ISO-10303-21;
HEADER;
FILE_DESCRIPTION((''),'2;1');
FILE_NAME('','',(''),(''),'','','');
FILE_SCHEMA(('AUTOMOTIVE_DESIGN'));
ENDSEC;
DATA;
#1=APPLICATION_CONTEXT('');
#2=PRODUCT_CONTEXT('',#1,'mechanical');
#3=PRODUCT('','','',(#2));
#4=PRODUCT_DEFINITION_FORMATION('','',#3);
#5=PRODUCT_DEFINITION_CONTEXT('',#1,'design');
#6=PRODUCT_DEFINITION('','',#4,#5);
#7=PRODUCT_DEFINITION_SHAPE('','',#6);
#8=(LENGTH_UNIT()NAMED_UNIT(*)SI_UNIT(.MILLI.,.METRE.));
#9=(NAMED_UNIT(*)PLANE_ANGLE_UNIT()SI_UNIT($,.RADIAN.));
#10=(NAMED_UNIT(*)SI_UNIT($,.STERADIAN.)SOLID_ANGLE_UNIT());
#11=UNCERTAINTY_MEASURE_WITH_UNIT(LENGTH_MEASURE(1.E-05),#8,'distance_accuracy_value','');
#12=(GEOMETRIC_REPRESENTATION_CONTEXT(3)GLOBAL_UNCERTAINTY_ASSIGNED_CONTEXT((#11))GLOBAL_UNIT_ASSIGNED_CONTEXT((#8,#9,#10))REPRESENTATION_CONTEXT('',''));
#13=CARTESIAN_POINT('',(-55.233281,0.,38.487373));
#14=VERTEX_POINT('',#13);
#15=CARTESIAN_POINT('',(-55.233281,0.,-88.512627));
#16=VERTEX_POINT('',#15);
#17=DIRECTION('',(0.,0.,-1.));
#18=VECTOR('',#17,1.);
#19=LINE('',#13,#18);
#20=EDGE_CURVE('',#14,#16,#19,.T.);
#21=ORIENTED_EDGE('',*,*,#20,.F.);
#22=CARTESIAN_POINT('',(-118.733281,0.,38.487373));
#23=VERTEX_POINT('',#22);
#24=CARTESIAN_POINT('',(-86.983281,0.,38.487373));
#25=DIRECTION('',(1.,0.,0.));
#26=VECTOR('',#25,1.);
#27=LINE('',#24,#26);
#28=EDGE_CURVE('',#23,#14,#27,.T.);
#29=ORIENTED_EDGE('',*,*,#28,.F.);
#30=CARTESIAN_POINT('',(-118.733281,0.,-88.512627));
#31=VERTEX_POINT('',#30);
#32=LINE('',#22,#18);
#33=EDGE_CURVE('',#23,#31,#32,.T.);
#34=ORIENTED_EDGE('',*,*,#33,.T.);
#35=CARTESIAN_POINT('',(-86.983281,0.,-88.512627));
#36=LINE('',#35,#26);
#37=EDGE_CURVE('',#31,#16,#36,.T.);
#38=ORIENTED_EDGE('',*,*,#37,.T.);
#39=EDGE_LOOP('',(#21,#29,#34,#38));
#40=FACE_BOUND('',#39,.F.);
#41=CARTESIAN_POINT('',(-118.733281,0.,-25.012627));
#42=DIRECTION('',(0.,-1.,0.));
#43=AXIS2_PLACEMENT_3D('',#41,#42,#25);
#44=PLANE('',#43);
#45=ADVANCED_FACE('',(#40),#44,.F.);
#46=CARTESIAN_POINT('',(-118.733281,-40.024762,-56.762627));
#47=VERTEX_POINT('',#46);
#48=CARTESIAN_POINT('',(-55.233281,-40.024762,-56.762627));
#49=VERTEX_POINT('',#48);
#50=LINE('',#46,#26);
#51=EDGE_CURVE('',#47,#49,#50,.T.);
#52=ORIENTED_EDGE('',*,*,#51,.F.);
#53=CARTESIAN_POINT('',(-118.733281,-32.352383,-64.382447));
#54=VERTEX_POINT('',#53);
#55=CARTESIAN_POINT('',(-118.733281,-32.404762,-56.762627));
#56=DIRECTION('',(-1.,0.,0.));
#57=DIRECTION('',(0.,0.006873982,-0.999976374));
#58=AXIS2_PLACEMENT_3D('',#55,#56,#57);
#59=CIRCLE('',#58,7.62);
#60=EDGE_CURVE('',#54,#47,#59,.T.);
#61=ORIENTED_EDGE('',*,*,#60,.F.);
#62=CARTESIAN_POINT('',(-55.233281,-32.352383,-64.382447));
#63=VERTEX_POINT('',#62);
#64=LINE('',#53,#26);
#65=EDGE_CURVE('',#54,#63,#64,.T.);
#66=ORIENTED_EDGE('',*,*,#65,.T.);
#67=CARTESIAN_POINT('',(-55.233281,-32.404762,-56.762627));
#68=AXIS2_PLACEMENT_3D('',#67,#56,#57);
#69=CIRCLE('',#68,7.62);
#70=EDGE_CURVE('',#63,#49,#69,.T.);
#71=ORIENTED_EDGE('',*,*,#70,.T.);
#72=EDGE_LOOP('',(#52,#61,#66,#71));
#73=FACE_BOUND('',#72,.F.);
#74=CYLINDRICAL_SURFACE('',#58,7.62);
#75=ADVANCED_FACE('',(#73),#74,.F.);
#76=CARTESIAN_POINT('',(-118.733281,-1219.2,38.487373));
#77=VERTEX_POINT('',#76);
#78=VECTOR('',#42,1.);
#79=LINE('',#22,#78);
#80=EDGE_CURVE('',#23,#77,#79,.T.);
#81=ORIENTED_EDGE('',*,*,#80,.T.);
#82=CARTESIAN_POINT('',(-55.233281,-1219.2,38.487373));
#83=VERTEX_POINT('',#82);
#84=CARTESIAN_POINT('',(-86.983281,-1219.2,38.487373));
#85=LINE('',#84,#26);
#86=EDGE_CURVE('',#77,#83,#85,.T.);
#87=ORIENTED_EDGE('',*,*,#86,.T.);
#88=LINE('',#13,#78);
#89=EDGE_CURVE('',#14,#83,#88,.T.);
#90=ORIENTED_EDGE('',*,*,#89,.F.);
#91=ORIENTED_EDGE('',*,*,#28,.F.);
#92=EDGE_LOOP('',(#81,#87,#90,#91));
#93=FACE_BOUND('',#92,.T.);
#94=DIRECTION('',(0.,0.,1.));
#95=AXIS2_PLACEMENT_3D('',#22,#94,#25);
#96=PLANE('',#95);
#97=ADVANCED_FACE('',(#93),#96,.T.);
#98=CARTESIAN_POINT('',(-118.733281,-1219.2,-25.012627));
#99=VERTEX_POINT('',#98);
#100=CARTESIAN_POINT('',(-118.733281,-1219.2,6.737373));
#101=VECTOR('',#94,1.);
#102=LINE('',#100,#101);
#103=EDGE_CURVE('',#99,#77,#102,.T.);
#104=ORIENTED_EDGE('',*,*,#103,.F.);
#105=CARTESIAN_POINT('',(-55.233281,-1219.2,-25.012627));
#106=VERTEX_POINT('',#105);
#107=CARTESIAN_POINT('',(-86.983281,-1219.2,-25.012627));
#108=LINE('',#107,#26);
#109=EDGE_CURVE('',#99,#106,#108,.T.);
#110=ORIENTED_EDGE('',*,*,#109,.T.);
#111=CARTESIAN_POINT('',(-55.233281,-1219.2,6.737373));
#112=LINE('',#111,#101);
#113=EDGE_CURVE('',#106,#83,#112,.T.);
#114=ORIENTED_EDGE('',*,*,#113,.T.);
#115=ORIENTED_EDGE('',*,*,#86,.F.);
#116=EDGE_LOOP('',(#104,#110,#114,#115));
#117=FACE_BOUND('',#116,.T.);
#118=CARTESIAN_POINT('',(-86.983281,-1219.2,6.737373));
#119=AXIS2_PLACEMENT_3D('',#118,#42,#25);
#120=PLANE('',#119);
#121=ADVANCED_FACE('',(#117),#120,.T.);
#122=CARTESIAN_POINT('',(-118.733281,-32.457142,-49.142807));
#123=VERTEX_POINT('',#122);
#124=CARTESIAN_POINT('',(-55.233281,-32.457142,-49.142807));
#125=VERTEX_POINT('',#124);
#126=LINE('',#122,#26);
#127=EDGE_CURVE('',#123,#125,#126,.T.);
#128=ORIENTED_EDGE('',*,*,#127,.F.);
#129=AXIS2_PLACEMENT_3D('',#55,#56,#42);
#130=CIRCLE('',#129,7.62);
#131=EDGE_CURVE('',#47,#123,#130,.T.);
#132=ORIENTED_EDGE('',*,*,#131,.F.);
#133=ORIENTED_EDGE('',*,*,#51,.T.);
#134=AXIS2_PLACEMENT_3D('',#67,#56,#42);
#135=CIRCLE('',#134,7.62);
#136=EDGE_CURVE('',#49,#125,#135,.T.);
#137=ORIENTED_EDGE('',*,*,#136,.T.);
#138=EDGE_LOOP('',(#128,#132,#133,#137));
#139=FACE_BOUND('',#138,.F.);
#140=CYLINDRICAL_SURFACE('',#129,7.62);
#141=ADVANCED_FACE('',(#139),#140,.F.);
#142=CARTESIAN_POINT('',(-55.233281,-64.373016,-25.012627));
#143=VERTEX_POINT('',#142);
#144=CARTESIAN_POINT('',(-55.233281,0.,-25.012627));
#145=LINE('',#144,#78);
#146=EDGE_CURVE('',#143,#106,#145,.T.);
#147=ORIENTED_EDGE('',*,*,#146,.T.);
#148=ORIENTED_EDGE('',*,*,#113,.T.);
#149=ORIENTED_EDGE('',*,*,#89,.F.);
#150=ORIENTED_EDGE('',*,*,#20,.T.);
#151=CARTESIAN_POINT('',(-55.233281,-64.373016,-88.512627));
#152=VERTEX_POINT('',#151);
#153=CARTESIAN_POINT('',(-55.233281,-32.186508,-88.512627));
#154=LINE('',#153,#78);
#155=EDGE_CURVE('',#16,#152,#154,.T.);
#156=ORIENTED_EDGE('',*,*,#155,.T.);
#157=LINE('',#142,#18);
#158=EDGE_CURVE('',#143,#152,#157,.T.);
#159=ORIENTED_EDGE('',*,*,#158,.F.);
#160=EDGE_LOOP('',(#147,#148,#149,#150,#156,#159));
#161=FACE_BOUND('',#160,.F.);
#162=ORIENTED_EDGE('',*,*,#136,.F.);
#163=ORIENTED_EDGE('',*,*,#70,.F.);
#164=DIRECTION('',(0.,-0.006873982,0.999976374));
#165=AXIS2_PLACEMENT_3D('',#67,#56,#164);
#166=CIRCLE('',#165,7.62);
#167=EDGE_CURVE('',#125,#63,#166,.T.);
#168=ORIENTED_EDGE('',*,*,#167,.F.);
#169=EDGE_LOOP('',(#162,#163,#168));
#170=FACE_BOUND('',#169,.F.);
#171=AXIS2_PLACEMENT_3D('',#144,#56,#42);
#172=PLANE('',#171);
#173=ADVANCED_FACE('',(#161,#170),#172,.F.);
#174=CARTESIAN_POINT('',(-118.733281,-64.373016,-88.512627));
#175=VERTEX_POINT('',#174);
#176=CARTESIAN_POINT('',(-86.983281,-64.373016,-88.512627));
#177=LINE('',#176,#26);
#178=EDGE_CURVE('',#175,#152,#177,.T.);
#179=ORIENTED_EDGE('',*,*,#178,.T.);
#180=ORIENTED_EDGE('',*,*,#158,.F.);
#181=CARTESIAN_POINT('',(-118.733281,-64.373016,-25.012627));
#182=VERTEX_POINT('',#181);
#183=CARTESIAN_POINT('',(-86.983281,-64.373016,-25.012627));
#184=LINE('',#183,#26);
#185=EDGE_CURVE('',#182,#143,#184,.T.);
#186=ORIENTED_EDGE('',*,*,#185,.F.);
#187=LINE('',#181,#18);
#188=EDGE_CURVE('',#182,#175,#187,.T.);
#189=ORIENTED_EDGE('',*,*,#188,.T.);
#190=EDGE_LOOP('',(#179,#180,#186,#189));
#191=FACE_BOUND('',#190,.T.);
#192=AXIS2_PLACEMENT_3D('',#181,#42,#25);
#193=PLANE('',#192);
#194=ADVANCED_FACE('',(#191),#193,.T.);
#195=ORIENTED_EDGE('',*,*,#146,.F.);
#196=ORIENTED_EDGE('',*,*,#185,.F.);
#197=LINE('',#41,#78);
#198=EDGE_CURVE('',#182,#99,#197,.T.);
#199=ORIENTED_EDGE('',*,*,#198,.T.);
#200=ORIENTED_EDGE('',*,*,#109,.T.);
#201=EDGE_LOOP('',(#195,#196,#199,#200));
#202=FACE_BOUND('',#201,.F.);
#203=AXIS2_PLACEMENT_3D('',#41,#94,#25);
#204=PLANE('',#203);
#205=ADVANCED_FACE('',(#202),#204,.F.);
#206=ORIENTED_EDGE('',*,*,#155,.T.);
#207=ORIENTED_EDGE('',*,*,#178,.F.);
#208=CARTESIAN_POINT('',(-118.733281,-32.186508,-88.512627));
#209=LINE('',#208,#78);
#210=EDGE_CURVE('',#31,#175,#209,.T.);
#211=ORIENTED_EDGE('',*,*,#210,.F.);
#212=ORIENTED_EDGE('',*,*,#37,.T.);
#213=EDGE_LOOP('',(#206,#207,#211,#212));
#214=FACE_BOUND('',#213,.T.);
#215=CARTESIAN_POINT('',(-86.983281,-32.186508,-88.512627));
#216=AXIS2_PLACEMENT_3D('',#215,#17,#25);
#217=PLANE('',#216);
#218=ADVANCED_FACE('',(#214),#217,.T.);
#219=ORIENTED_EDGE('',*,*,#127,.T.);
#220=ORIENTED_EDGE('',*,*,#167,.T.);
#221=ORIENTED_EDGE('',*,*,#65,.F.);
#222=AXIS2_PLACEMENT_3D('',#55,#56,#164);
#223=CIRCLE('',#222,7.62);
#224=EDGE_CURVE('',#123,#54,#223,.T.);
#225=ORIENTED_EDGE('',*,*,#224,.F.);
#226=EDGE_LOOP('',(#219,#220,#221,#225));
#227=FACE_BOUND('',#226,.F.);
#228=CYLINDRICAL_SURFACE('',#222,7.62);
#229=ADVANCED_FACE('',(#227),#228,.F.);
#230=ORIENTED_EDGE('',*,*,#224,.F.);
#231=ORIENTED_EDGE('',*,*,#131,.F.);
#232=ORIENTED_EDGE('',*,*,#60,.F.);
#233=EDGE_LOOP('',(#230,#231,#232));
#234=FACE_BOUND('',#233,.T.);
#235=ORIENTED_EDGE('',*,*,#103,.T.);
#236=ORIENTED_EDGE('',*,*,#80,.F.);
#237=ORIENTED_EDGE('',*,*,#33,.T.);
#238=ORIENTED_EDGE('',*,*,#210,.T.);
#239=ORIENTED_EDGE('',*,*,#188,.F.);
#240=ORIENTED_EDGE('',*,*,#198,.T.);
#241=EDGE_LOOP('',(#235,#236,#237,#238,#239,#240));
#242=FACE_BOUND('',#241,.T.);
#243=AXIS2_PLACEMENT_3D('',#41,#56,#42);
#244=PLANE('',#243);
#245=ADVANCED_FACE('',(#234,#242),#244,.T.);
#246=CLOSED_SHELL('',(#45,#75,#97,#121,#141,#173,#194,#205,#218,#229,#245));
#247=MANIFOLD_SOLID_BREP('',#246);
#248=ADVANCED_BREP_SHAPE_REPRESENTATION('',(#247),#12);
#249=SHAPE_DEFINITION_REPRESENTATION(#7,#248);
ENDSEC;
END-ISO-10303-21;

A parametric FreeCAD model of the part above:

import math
import FreeCAD as App
import Part
import Sketcher
Q = App.Units.Quantity


def add_polygon(sketch, points):
    """Adds a closed chain of lines whose ends are joined by coincident constraints."""
    first, n = sketch.GeometryCount, len(points)
    for a, b in zip(points, points[1:] + points[:1]):
        sketch.addGeometry(Part.LineSegment(App.Vector(*a, 0), App.Vector(*b, 0)), False)
    for i in range(n):
        sketch.addConstraint(Sketcher.Constraint("Coincident", first + i, 2, first + (i + 1) % n, 1))

doc = App.newDocument("Part")
params = doc.addObject("Spreadsheet::Sheet", "Params")
for row, (alias, value) in enumerate([
    ("sketch1_width", "2.5 in"),
    ("pad1_length", "48 in"),
    ("sketch2_width", "2.5 in"),
    ("pad2_length", "2.5 in"),
    ("sketch3_radius", "0.3 in"),
    ("pocket1_length", "3 in"),
], start=1):
    params.set(f"A{row}", alias)
    params.set(f"B{row}", "=" + value)
    params.setAlias(f"B{row}", alias)

body = doc.addObject("PartDesign::Body", "Body")

# Sketch on XZ plane
sketch1 = doc.addObject("Sketcher::SketchObject", "Sketch")
body.addObject(sketch1)
sketch1.AttachmentSupport = (doc.XZ_Plane, [""])
sketch1.MapMode = "FlatFace"
add_polygon(sketch1, [(-119, 38), (-119, -25), (-55, -25), (-55, 38)])  # lines 0-3
sketch1.addConstraint([
    Sketcher.Constraint("Vertical", 0),
    Sketcher.Constraint("Horizontal", 1),
    Sketcher.Constraint("Vertical", 2),
    Sketcher.Constraint("Horizontal", 3),
    Sketcher.Constraint("Equal", 3, 0),
    Sketcher.Constraint("DistanceX", 1, 1, 1, 2, Q("2.5 in")),
    Sketcher.Constraint("DistanceX", 0, 2, -1, 1, Q("118.733281 mm")),
    Sketcher.Constraint("DistanceY", 0, 2, -1, 1, Q("25.012627 mm")),
])
sketch1.setExpression("Constraints[9]", "Params.sketch1_width")
pad1 = doc.addObject("PartDesign::Pad", "Pad")
body.addObject(pad1)
pad1.Profile = sketch1
pad1.setExpression("Length", "Params.pad1_length")

# Sketch on XY plane
sketch2 = doc.addObject("Sketcher::SketchObject", "Sketch001")
body.addObject(sketch2)
sketch2.AttachmentSupport = (doc.XY_Plane, [""])
sketch2.MapMode = "FlatFace"
sketch2.AttachmentOffset = App.Placement(App.Vector(0, 0, -25.012627), App.Rotation())
add_polygon(sketch2, [(-119, -64), (-119, 0), (-55, 0), (-55, -64)])  # lines 0-3
sketch2.addConstraint([
    Sketcher.Constraint("Vertical", 0),
    Sketcher.Constraint("Horizontal", 1),
    Sketcher.Constraint("Vertical", 2),
    Sketcher.Constraint("Horizontal", 3),
    Sketcher.Constraint("PointOnObject", 0, 2, -1),
    Sketcher.Constraint("DistanceX", 1, 1, 1, 2, Q("2.5 in")),
    Sketcher.Constraint("DistanceY", 0, 1, 0, 2, Q("64.373016 mm")),
    Sketcher.Constraint("DistanceX", 0, 2, -1, 1, Q("118.733281 mm")),
])
sketch2.setExpression("Constraints[9]", "Params.sketch2_width")
pad2 = doc.addObject("PartDesign::Pad", "Pad001")
body.addObject(pad2)
pad2.Profile = sketch2
pad2.setExpression("Length", "Params.pad2_length")
pad2.Reversed = True

# Sketch on YZ plane
sketch3 = doc.addObject("Sketcher::SketchObject", "Sketch002")
body.addObject(sketch3)
sketch3.AttachmentSupport = (doc.YZ_Plane, [""])
sketch3.MapMode = "FlatFace"
sketch3.AttachmentOffset = App.Placement(App.Vector(0, 0, -118.733281), App.Rotation())
sketch3.addGeometry([
    Part.ArcOfCircle(Part.Circle(App.Vector(-32, -57, 0), App.Vector(0, 0, 1), 8), math.radians(180), math.radians(270)),
    Part.ArcOfCircle(Part.Circle(App.Vector(-32, -57, 0), App.Vector(0, 0, 1), 8), math.radians(90), math.radians(180)),
    Part.ArcOfCircle(Part.Circle(App.Vector(-32, -57, 0), App.Vector(0, 0, 1), 8), math.radians(-90), math.radians(90)),
], False)
sketch3.addConstraint([
    Sketcher.Constraint("Tangent", 0, 1, 1, 2),
    Sketcher.Constraint("Tangent", 1, 1, 2, 2),
    Sketcher.Constraint("Tangent", 2, 1, 0, 2),
    Sketcher.Constraint("Horizontal", 2, 3, 0, 1),
    Sketcher.Constraint("Radius", 0, Q("0.3 in")),
    Sketcher.Constraint("DistanceX", 1, 1, 0, 3, Q("0.05238 mm")),
    Sketcher.Constraint("DistanceX", 0, 3, 2, 1, Q("0.05238 mm")),
    Sketcher.Constraint("DistanceX", 0, 3, -1, 1, Q("32.404762 mm")),
    Sketcher.Constraint("DistanceY", 0, 3, -1, 1, Q("56.762627 mm")),
])
sketch3.setExpression("Constraints[4]", "Params.sketch3_radius")
pocket1 = doc.addObject("PartDesign::Pocket", "Pocket")
body.addObject(pocket1)
pocket1.Profile = sketch3
pocket1.setExpression("Length", "Params.pocket1_length")
pocket1.Reversed = True

doc.recompute()
